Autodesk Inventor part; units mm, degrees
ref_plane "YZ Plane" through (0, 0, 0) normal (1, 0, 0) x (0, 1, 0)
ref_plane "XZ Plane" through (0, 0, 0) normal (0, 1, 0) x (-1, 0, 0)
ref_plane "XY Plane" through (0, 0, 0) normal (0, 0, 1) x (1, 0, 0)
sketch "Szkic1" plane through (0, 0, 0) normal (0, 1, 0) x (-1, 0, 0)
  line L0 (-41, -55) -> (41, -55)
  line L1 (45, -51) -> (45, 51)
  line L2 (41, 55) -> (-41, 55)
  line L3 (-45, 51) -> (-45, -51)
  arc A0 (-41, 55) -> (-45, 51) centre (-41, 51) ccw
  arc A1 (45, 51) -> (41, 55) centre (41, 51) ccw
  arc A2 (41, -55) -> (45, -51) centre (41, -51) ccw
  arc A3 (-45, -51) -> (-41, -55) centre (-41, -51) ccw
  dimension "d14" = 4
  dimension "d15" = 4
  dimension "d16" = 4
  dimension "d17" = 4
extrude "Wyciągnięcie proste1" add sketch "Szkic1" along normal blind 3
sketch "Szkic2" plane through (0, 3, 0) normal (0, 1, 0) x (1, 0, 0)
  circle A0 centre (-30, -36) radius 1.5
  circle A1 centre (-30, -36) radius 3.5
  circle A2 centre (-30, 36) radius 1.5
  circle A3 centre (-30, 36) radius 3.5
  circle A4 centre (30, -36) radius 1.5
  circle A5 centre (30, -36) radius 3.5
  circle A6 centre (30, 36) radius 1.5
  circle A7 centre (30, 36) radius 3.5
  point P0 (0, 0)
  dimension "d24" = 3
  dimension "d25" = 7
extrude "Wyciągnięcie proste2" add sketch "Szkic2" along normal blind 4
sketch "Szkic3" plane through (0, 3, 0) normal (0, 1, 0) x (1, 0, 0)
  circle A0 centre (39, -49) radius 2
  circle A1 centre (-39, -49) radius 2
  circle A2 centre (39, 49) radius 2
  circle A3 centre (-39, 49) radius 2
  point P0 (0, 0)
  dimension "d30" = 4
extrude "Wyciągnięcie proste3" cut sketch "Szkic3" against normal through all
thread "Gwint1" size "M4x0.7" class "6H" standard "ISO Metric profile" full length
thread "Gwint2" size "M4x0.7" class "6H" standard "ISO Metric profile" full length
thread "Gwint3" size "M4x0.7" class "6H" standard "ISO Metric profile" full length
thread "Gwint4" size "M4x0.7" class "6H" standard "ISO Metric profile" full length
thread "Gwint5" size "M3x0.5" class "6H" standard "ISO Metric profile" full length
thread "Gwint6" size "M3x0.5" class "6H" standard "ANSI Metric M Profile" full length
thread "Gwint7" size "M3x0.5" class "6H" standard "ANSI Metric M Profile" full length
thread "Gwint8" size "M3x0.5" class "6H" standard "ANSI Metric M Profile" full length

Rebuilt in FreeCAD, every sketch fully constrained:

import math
import FreeCAD as App
import Part
import Sketcher
Q = App.Units.Quantity

doc = App.newDocument("Part")
params = doc.addObject("Spreadsheet::Sheet", "Params")
for row, (alias, value) in enumerate([
    ("sketch1_radius", "4 mm"),
    ("sketch1_width", "82 mm"),
    ("sketch1_height", "102 mm"),
    ("pad1_length", "3 mm"),
    ("sketch2_diameter", "7 mm"),
    ("sketch2_diameter2", "3 mm"),
    ("pad2_length", "4 mm"),
    ("sketch3_diameter", "4 mm"),
], start=1):
    params.set(f"A{row}", alias)
    params.set(f"B{row}", "=" + value)
    params.setAlias(f"B{row}", alias)

body = doc.addObject("PartDesign::Body", "Body")

# Sketch on XZ plane
sketch1 = doc.addObject("Sketcher::SketchObject", "Sketch")
body.addObject(sketch1)
sketch1.AttachmentSupport = (doc.XZ_Plane, [""])
sketch1.MapMode = "FlatFace"
sketch1.addGeometry([
    Part.ArcOfCircle(Part.Circle(App.Vector(41, -51, 0), App.Vector(0, 0, 1), 4), math.radians(-90), math.radians(0)),  # 0
    Part.LineSegment(App.Vector(41, -55, 0), App.Vector(-41, -55, 0)),  # 1
    Part.ArcOfCircle(Part.Circle(App.Vector(-41, -51, 0), App.Vector(0, 0, 1), 4), math.radians(180), math.radians(270)),  # 2
    Part.LineSegment(App.Vector(-45, -51, 0), App.Vector(-45, 51, 0)),  # 3
    Part.ArcOfCircle(Part.Circle(App.Vector(-41, 51, 0), App.Vector(0, 0, 1), 4), math.radians(90), math.radians(180)),  # 4
    Part.LineSegment(App.Vector(-41, 55, 0), App.Vector(41, 55, 0)),  # 5
    Part.ArcOfCircle(Part.Circle(App.Vector(41, 51, 0), App.Vector(0, 0, 1), 4), math.radians(0), math.radians(90)),  # 6
    Part.LineSegment(App.Vector(45, 51, 0), App.Vector(45, -51, 0)),  # 7
], False)
sketch1.addConstraint([
    Sketcher.Constraint("Tangent", 0, 1, 1, 1),
    Sketcher.Constraint("Tangent", 1, 2, 2, 2),
    Sketcher.Constraint("Tangent", 2, 1, 3, 1),
    Sketcher.Constraint("Tangent", 3, 2, 4, 2),
    Sketcher.Constraint("Tangent", 4, 1, 5, 1),
    Sketcher.Constraint("Tangent", 5, 2, 6, 2),
    Sketcher.Constraint("Tangent", 6, 1, 7, 1),
    Sketcher.Constraint("Tangent", 7, 2, 0, 2),
    Sketcher.Constraint("Horizontal", 1),
    Sketcher.Constraint("Vertical", 3),
    Sketcher.Constraint("Horizontal", 5),
    Sketcher.Constraint("Vertical", 7),
    Sketcher.Constraint("Equal", 0, 2),
    Sketcher.Constraint("Equal", 2, 4),
    Sketcher.Constraint("Equal", 4, 6),
    Sketcher.Constraint("Symmetric", 0, 3, 4, 3, -1, 1),
    Sketcher.Constraint("Radius", 0, Q("4 mm")),
    Sketcher.Constraint("DistanceX", 1, 2, 1, 1, Q("82 mm")),
    Sketcher.Constraint("DistanceY", 3, 1, 3, 2, Q("102 mm")),
])
sketch1.setExpression("Constraints[16]", "Params.sketch1_radius")
sketch1.setExpression("Constraints[17]", "Params.sketch1_width")
sketch1.setExpression("Constraints[18]", "Params.sketch1_height")
pad1 = doc.addObject("PartDesign::Pad", "Pad")
body.addObject(pad1)
pad1.Profile = sketch1
pad1.setExpression("Length", "Params.pad1_length")
pad1.Reversed = True

# Sketch on XZ plane
sketch2 = doc.addObject("Sketcher::SketchObject", "Sketch001")
body.addObject(sketch2)
sketch2.AttachmentSupport = (doc.XZ_Plane, [""])
sketch2.MapMode = "FlatFace"
sketch2.AttachmentOffset = App.Placement(App.Vector(0, 0, -3), App.Rotation())
sketch2.addGeometry([
    Part.Circle(App.Vector(-30, 36, 0), App.Vector(0, 0, 1), 3.5),  # 0
    Part.Circle(App.Vector(-30, 36, 0), App.Vector(0, 0, 1), 1.5),  # 1
    Part.Circle(App.Vector(-30, -36, 0), App.Vector(0, 0, 1), 3.5),  # 2
    Part.Circle(App.Vector(-30, -36, 0), App.Vector(0, 0, 1), 1.5),  # 3
    Part.Circle(App.Vector(30, 36, 0), App.Vector(0, 0, 1), 3.5),  # 4
    Part.Circle(App.Vector(30, 36, 0), App.Vector(0, 0, 1), 1.5),  # 5
    Part.Circle(App.Vector(30, -36, 0), App.Vector(0, 0, 1), 3.5),  # 6
    Part.Circle(App.Vector(30, -36, 0), App.Vector(0, 0, 1), 1.5),  # 7
], False)
sketch2.addConstraint([
    Sketcher.Constraint("Coincident", 1, 3, 0, 3),
    Sketcher.Constraint("Coincident", 3, 3, 2, 3),
    Sketcher.Constraint("Coincident", 5, 3, 4, 3),
    Sketcher.Constraint("Coincident", 7, 3, 6, 3),
    Sketcher.Constraint("Equal", 0, 2),
    Sketcher.Constraint("Equal", 1, 3),
    Sketcher.Constraint("Equal", 2, 4),
    Sketcher.Constraint("Equal", 3, 5),
    Sketcher.Constraint("Equal", 4, 6),
    Sketcher.Constraint("Equal", 5, 7),
    Sketcher.Constraint("Symmetric", 2, 3, 4, 3, -1, 1),
    Sketcher.Constraint("Symmetric", 0, 3, 6, 3, -1, 1),
    Sketcher.Constraint("Symmetric", 0, 3, 4, 3, -2),
    Sketcher.Constraint("Diameter", 0, Q("7 mm")),
    Sketcher.Constraint("Diameter", 1, Q("3 mm")),
    Sketcher.Constraint("DistanceX", 0, 3, -1, 1, Q("30 mm")),
    Sketcher.Constraint("DistanceY", -1, 1, 0, 3, Q("36 mm")),
])
sketch2.setExpression("Constraints[13]", "Params.sketch2_diameter")
sketch2.setExpression("Constraints[14]", "Params.sketch2_diameter2")
pad2 = doc.addObject("PartDesign::Pad", "Pad001")
body.addObject(pad2)
pad2.Profile = sketch2
pad2.setExpression("Length", "Params.pad2_length")
pad2.Reversed = True

# Sketch on XZ plane
sketch3 = doc.addObject("Sketcher::SketchObject", "Sketch002")
body.addObject(sketch3)
sketch3.AttachmentSupport = (doc.XZ_Plane, [""])
sketch3.MapMode = "FlatFace"
sketch3.AttachmentOffset = App.Placement(App.Vector(0, 0, -3), App.Rotation())
sketch3.addGeometry([
    Part.Circle(App.Vector(39, 49, 0), App.Vector(0, 0, 1), 2),
    Part.Circle(App.Vector(-39, 49, 0), App.Vector(0, 0, 1), 2),
    Part.Circle(App.Vector(39, -49, 0), App.Vector(0, 0, 1), 2),
    Part.Circle(App.Vector(-39, -49, 0), App.Vector(0, 0, 1), 2),
], False)
sketch3.addConstraint([
    Sketcher.Constraint("Equal", 0, 1),
    Sketcher.Constraint("Equal", 1, 2),
    Sketcher.Constraint("Equal", 2, 3),
    Sketcher.Constraint("Symmetric", 1, 3, 2, 3, -1, 1),
    Sketcher.Constraint("Symmetric", 0, 3, 3, 3, -1, 1),
    Sketcher.Constraint("Symmetric", 0, 3, 1, 3, -2),
    Sketcher.Constraint("Diameter", 0, Q("4 mm")),
    Sketcher.Constraint("DistanceX", -1, 1, 0, 3, Q("39 mm")),
    Sketcher.Constraint("DistanceY", -1, 1, 0, 3, Q("49 mm")),
])
sketch3.setExpression("Constraints[6]", "Params.sketch3_diameter")
pocket1 = doc.addObject("PartDesign::Pocket", "Pocket")
body.addObject(pocket1)
pocket1.Profile = sketch3
pocket1.Type = "ThroughAll"
pocket1.Reversed = True

doc.recompute()
